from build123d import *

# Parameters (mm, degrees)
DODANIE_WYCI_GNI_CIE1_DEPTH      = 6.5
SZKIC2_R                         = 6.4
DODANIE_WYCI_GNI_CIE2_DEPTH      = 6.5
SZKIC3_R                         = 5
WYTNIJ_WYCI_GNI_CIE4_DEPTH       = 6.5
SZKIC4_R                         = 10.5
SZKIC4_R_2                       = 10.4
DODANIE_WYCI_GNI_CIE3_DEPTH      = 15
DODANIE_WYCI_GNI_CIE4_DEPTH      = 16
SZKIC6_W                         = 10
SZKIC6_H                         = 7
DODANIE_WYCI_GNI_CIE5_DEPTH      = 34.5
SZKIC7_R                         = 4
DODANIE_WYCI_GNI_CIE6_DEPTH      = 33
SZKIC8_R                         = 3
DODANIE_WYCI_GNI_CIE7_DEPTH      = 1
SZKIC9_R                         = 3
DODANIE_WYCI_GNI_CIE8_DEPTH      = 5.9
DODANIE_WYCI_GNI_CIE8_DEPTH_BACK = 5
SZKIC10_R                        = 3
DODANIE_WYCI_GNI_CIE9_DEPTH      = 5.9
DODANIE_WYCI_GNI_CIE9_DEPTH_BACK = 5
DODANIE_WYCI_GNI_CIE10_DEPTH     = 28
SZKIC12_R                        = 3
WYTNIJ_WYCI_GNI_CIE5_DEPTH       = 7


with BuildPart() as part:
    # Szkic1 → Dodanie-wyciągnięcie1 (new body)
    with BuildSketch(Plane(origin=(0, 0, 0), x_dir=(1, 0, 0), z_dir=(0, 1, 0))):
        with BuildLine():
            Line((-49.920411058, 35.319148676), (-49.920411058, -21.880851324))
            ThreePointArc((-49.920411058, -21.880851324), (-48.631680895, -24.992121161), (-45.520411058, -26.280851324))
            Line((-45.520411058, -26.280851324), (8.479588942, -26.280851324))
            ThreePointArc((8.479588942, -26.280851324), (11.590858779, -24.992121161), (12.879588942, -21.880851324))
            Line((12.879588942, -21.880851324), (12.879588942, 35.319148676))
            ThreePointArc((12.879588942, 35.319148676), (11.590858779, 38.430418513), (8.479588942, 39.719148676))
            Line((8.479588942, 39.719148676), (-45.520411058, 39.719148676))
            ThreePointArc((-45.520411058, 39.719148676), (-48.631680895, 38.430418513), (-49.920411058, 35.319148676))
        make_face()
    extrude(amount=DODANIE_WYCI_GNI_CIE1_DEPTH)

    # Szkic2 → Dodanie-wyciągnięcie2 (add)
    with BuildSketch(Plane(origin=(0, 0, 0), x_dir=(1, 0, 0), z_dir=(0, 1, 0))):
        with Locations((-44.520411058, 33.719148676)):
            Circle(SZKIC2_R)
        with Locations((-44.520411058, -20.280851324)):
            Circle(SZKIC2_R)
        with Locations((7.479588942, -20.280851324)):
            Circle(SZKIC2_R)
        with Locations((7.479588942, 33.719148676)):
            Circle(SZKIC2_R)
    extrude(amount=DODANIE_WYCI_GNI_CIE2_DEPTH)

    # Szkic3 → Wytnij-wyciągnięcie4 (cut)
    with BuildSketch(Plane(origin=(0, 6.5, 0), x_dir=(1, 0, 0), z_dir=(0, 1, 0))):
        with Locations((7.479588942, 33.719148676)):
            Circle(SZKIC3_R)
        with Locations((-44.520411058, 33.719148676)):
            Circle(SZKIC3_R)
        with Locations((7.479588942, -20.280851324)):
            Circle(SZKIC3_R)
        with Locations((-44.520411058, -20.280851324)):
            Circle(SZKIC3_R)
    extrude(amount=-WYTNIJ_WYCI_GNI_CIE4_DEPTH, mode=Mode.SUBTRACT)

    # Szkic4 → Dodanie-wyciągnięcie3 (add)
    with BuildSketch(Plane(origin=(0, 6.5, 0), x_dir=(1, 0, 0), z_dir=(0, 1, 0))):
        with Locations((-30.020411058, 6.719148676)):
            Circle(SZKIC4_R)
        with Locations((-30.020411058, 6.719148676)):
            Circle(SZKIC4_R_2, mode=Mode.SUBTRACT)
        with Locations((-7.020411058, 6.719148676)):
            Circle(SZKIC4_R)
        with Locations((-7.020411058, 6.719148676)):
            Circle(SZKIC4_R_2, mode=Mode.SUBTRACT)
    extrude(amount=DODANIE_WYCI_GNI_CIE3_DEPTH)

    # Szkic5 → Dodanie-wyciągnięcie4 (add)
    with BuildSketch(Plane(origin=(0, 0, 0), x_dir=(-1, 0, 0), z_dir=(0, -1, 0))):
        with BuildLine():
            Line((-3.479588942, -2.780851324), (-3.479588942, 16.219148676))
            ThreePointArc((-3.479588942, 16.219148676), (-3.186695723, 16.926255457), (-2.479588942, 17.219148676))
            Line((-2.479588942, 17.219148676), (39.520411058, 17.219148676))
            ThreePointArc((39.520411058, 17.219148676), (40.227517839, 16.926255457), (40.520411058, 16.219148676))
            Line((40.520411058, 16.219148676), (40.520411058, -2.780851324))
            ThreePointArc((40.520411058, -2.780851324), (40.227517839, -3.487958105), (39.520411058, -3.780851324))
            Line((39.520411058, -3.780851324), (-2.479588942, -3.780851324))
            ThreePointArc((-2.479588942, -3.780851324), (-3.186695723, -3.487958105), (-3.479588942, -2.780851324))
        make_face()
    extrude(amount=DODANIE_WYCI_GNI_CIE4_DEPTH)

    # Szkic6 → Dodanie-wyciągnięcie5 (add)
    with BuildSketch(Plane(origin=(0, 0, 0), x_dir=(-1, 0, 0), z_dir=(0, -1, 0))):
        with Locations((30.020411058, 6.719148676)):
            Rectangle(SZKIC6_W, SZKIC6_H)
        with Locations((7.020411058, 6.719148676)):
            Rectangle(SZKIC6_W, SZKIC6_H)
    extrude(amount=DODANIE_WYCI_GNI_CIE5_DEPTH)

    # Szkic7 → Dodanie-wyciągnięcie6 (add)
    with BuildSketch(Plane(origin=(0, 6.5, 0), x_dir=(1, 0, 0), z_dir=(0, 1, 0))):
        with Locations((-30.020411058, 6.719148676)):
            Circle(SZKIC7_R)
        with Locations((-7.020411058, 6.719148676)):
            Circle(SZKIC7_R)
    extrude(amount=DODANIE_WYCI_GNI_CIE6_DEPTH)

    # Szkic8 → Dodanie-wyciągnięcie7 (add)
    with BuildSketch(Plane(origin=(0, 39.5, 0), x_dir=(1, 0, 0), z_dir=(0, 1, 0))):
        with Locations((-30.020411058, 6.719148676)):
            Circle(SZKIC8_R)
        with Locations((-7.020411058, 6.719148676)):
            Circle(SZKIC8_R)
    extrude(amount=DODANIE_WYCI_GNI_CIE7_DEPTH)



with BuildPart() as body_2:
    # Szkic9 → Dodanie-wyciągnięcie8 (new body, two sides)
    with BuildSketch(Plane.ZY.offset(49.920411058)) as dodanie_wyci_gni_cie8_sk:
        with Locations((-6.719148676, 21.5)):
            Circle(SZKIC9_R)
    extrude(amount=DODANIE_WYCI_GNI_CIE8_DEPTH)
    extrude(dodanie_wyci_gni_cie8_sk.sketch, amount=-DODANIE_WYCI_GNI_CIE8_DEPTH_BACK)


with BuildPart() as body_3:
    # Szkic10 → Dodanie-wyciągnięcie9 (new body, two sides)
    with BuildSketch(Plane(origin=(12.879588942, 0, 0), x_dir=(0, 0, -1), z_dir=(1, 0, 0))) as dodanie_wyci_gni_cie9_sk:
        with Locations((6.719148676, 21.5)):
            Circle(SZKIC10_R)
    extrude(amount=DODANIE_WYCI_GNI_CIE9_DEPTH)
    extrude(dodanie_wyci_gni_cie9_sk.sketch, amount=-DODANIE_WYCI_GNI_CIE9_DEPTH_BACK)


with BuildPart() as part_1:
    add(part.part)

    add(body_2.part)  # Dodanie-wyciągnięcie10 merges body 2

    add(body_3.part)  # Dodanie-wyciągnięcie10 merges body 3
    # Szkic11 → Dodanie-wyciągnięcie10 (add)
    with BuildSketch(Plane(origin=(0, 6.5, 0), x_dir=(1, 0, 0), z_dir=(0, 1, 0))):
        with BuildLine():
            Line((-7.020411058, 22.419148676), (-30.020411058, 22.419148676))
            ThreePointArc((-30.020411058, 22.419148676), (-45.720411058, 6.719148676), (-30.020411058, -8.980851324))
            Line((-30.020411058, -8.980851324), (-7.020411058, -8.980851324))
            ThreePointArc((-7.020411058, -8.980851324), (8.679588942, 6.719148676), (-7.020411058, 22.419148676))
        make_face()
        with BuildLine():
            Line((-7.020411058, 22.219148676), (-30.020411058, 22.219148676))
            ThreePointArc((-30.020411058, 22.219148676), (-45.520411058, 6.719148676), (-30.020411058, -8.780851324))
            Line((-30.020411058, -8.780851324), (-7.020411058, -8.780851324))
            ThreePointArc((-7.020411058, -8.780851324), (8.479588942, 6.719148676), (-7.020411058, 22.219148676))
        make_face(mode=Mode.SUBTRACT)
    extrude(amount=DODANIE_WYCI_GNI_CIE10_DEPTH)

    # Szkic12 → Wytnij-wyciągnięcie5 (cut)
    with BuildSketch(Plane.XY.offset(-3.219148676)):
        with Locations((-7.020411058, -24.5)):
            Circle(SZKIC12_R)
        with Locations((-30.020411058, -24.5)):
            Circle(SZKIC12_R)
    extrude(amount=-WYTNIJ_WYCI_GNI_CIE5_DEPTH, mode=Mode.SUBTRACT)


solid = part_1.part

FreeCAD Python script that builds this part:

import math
import FreeCAD as App
import Part
import Sketcher
from FreeCAD import Vector


def add_polygon(sketch, points):
    """Adds a closed chain of lines whose ends are joined by coincident constraints."""
    first, n = sketch.GeometryCount, len(points)
    for a, b in zip(points, points[1:] + points[:1]):
        sketch.addGeometry(Part.LineSegment(App.Vector(*a, 0), App.Vector(*b, 0)), False)
    for i in range(n):
        sketch.addConstraint(Sketcher.Constraint("Coincident", first + i, 2, first + (i + 1) % n, 1))

doc = App.newDocument("Part")
body = doc.addObject("PartDesign::Body", "Body")

# Sketch on XZ plane
sketch1 = body.newObject("Sketcher::SketchObject", "Sketch")
sketch1.AttachmentSupport = (doc.getObject("XZ_Plane"), [""])
sketch1.MapMode = "FlatFace"
sketch1.addGeometry(Part.LineSegment(Vector(-49.9, -35.3, 0), Vector(-49.9, 21.9, 0)), False)
sketch1.addGeometry(Part.ArcOfCircle(Part.Circle(Vector(-45.5, 21.9, 0), Vector(0, 0, 1), 4.4), math.radians(90), math.radians(180)), False)
sketch1.addGeometry(Part.LineSegment(Vector(-45.5, 26.3, 0), Vector(8.5, 26.3, 0)), False)
sketch1.addGeometry(Part.ArcOfCircle(Part.Circle(Vector(8.5, 21.9, 0), Vector(0, 0, 1), 4.4), math.radians(0), math.radians(90)), False)
sketch1.addGeometry(Part.LineSegment(Vector(12.9, 21.9, 0), Vector(12.9, -35.3, 0)), False)
sketch1.addGeometry(Part.ArcOfCircle(Part.Circle(Vector(8.5, -35.3, 0), Vector(0, 0, 1), 4.4), math.radians(-90), math.radians(0)), False)
sketch1.addGeometry(Part.LineSegment(Vector(8.5, -39.7, 0), Vector(-45.5, -39.7, 0)), False)
sketch1.addGeometry(Part.ArcOfCircle(Part.Circle(Vector(-45.5, -35.3, 0), Vector(0, 0, 1), 4.4), math.radians(-180), math.radians(-90)), False)
sketch1.addConstraint(Sketcher.Constraint("Tangent", 0, 2, 1, 2))
sketch1.addConstraint(Sketcher.Constraint("Tangent", 1, 1, 2, 1))
sketch1.addConstraint(Sketcher.Constraint("Tangent", 2, 2, 3, 2))
sketch1.addConstraint(Sketcher.Constraint("Tangent", 3, 1, 4, 1))
sketch1.addConstraint(Sketcher.Constraint("Tangent", 4, 2, 5, 2))
sketch1.addConstraint(Sketcher.Constraint("Tangent", 5, 1, 6, 1))
sketch1.addConstraint(Sketcher.Constraint("Tangent", 6, 2, 7, 2))
sketch1.addConstraint(Sketcher.Constraint("Tangent", 7, 1, 0, 1))
sketch1.addConstraint(Sketcher.Constraint("Vertical", 0))
sketch1.addConstraint(Sketcher.Constraint("Horizontal", 2))
sketch1.addConstraint(Sketcher.Constraint("Vertical", 4))
sketch1.addConstraint(Sketcher.Constraint("Horizontal", 6))
sketch1.addConstraint(Sketcher.Constraint("Equal", 1, 3))
sketch1.addConstraint(Sketcher.Constraint("Equal", 3, 5))
sketch1.addConstraint(Sketcher.Constraint("Equal", 5, 7))
sketch1.addConstraint(Sketcher.Constraint("Radius", 1, 4.4))
sketch1.addConstraint(Sketcher.Constraint("DistanceX", 2, 1, 2, 2, 54.0))
sketch1.addConstraint(Sketcher.Constraint("DistanceY", 0, 1, 0, 2, 57.2))
sketch1.addConstraint(Sketcher.Constraint("DistanceX", 1, 3, -1, 1, 45.520411))
sketch1.addConstraint(Sketcher.Constraint("DistanceY", -1, 1, 1, 3, 21.880851))
pad1 = body.newObject("PartDesign::Pad", "Pad")
pad1.Profile = sketch1
pad1.Length = 6.5
pad1.Reversed = True

# Sketch on XZ plane
sketch2 = body.newObject("Sketcher::SketchObject", "Sketch001")
sketch2.AttachmentSupport = (doc.getObject("XZ_Plane"), [""])
sketch2.MapMode = "FlatFace"
sketch2.addGeometry(Part.Circle(Vector(-45, -34, 0), Vector(0, 0, 1), 6), False)
sketch2.addGeometry(Part.Circle(Vector(-45, 20, 0), Vector(0, 0, 1), 6), False)
sketch2.addGeometry(Part.Circle(Vector(7, 20, 0), Vector(0, 0, 1), 6), False)
sketch2.addGeometry(Part.Circle(Vector(7, -34, 0), Vector(0, 0, 1), 6), False)
sketch2.addConstraint(Sketcher.Constraint("Equal", 0, 1))
sketch2.addConstraint(Sketcher.Constraint("Equal", 1, 2))
sketch2.addConstraint(Sketcher.Constraint("Equal", 2, 3))
sketch2.addConstraint(Sketcher.Constraint("Horizontal", 1, 3, 2, 3))
sketch2.addConstraint(Sketcher.Constraint("Horizontal", 0, 3, 3, 3))
sketch2.addConstraint(Sketcher.Constraint("Vertical", 0, 3, 1, 3))
sketch2.addConstraint(Sketcher.Constraint("Vertical", 2, 3, 3, 3))
sketch2.addConstraint(Sketcher.Constraint("Diameter", 0, 12.8))
sketch2.addConstraint(Sketcher.Constraint("DistanceY", 0, 3, 1, 3, 54.0))
sketch2.addConstraint(Sketcher.Constraint("DistanceX", 1, 3, 2, 3, 52.0))
sketch2.addConstraint(Sketcher.Constraint("DistanceX", 0, 3, -1, 1, 44.520411))
sketch2.addConstraint(Sketcher.Constraint("DistanceY", 0, 3, -1, 1, 33.719149))
pad2 = body.newObject("PartDesign::Pad", "Pad001")
pad2.Profile = sketch2
pad2.Length = 6.5
pad2.Reversed = True

# Sketch on XZ plane
sketch3 = body.newObject("Sketcher::SketchObject", "Sketch002")
sketch3.AttachmentSupport = (doc.getObject("XZ_Plane"), [""])
sketch3.MapMode = "FlatFace"
sketch3.AttachmentOffset = App.Placement(Vector(0, 0, -6.5), App.Rotation())
sketch3.addGeometry(Part.Circle(Vector(7, -34, 0), Vector(0, 0, 1), 5), False)
sketch3.addGeometry(Part.Circle(Vector(-45, -34, 0), Vector(0, 0, 1), 5), False)
sketch3.addGeometry(Part.Circle(Vector(7, 20, 0), Vector(0, 0, 1), 5), False)
sketch3.addGeometry(Part.Circle(Vector(-45, 20, 0), Vector(0, 0, 1), 5), False)
sketch3.addConstraint(Sketcher.Constraint("Equal", 0, 1))
sketch3.addConstraint(Sketcher.Constraint("Equal", 1, 2))
sketch3.addConstraint(Sketcher.Constraint("Equal", 2, 3))
sketch3.addConstraint(Sketcher.Constraint("Horizontal", 0, 3, 1, 3))
sketch3.addConstraint(Sketcher.Constraint("Horizontal", 2, 3, 3, 3))
sketch3.addConstraint(Sketcher.Constraint("Vertical", 0, 3, 2, 3))
sketch3.addConstraint(Sketcher.Constraint("Vertical", 1, 3, 3, 3))
sketch3.addConstraint(Sketcher.Constraint("Diameter", 0, 10.0))
sketch3.addConstraint(Sketcher.Constraint("DistanceX", 1, 3, 0, 3, 52.0))
sketch3.addConstraint(Sketcher.Constraint("DistanceY", 0, 3, 2, 3, 54.0))
sketch3.addConstraint(Sketcher.Constraint("DistanceX", -1, 1, 0, 3, 7.479589))
sketch3.addConstraint(Sketcher.Constraint("DistanceY", 0, 3, -1, 1, 33.719149))
pocket1 = body.newObject("PartDesign::Pocket", "Pocket")
pocket1.Profile = sketch3
pocket1.Length = 6.5
pocket1.Reversed = True

# Sketch on XZ plane
sketch4 = body.newObject("Sketcher::SketchObject", "Sketch003")
sketch4.AttachmentSupport = (doc.getObject("XZ_Plane"), [""])
sketch4.MapMode = "FlatFace"
sketch4.AttachmentOffset = App.Placement(Vector(0, 0, -6.5), App.Rotation())
sketch4.addGeometry(Part.Circle(Vector(-30, -7, 0), Vector(0, 0, 1), 10), False)
sketch4.addGeometry(Part.Circle(Vector(-30, -7, 0), Vector(0, 0, 1), 10), False)
sketch4.addGeometry(Part.Circle(Vector(-7, -7, 0), Vector(0, 0, 1), 10), False)
sketch4.addGeometry(Part.Circle(Vector(-7, -7, 0), Vector(0, 0, 1), 10), False)
sketch4.addConstraint(Sketcher.Constraint("Coincident", 1, 3, 0, 3))
sketch4.addConstraint(Sketcher.Constraint("Coincident", 3, 3, 2, 3))
sketch4.addConstraint(Sketcher.Constraint("Equal", 0, 2))
sketch4.addConstraint(Sketcher.Constraint("Equal", 1, 3))
sketch4.addConstraint(Sketcher.Constraint("Horizontal", 1, 3, 2, 3))
sketch4.addConstraint(Sketcher.Constraint("Diameter", 0, 21.0))
sketch4.addConstraint(Sketcher.Constraint("Diameter", 1, 20.8))
sketch4.addConstraint(Sketcher.Constraint("DistanceX", 0, 3, 2, 3, 23.0))
sketch4.addConstraint(Sketcher.Constraint("DistanceX", 0, 3, -1, 1, 30.020411))
sketch4.addConstraint(Sketcher.Constraint("DistanceY", 0, 3, -1, 1, 6.719149))
pad3 = body.newObject("PartDesign::Pad", "Pad002")
pad3.Profile = sketch4
pad3.Length = 15
pad3.Reversed = True

# Sketch on XZ plane
sketch5 = body.newObject("Sketcher::SketchObject", "Sketch004")
sketch5.AttachmentSupport = (doc.getObject("XZ_Plane"), [""])
sketch5.MapMode = "FlatFace"
sketch5.addGeometry(Part.LineSegment(Vector(3.5, -16.2, 0), Vector(3.5, 2.8, 0)), False)
sketch5.addGeometry(Part.ArcOfCircle(Part.Circle(Vector(2.5, 2.8, 0), Vector(0, 0, 1), 1), math.radians(0), math.radians(90)), False)
sketch5.addGeometry(Part.LineSegment(Vector(2.5, 3.8, 0), Vector(-39.5, 3.8, 0)), False)
sketch5.addGeometry(Part.ArcOfCircle(Part.Circle(Vector(-39.5, 2.8, 0), Vector(0, 0, 1), 1), math.radians(90), math.radians(180)), False)
sketch5.addGeometry(Part.LineSegment(Vector(-40.5, 2.8, 0), Vector(-40.5, -16.2, 0)), False)
sketch5.addGeometry(Part.ArcOfCircle(Part.Circle(Vector(-39.5, -16.2, 0), Vector(0, 0, 1), 1), math.radians(-180), math.radians(-90)), False)
sketch5.addGeometry(Part.LineSegment(Vector(-39.5, -17.2, 0), Vector(2.5, -17.2, 0)), False)
sketch5.addGeometry(Part.ArcOfCircle(Part.Circle(Vector(2.5, -16.2, 0), Vector(0, 0, 1), 1), math.radians(-90), math.radians(0)), False)
sketch5.addConstraint(Sketcher.Constraint("Tangent", 0, 2, 1, 1))
sketch5.addConstraint(Sketcher.Constraint("Tangent", 1, 2, 2, 1))
sketch5.addConstraint(Sketcher.Constraint("Tangent", 2, 2, 3, 1))
sketch5.addConstraint(Sketcher.Constraint("Tangent", 3, 2, 4, 1))
sketch5.addConstraint(Sketcher.Constraint("Tangent", 4, 2, 5, 1))
sketch5.addConstraint(Sketcher.Constraint("Tangent", 5, 2, 6, 1))
sketch5.addConstraint(Sketcher.Constraint("Tangent", 6, 2, 7, 1))
sketch5.addConstraint(Sketcher.Constraint("Tangent", 7, 2, 0, 1))
sketch5.addConstraint(Sketcher.Constraint("Vertical", 0))
sketch5.addConstraint(Sketcher.Constraint("Horizontal", 2))
sketch5.addConstraint(Sketcher.Constraint("Vertical", 4))
sketch5.addConstraint(Sketcher.Constraint("Horizontal", 6))
sketch5.addConstraint(Sketcher.Constraint("Equal", 1, 3))
sketch5.addConstraint(Sketcher.Constraint("Equal", 3, 5))
sketch5.addConstraint(Sketcher.Constraint("Equal", 5, 7))
sketch5.addConstraint(Sketcher.Constraint("Radius", 1, 1.0))
sketch5.addConstraint(Sketcher.Constraint("DistanceX", 2, 2, 2, 1, 42.0))
sketch5.addConstraint(Sketcher.Constraint("DistanceY", 0, 1, 0, 2, 19.0))
sketch5.addConstraint(Sketcher.Constraint("DistanceX", -1, 1, 1, 3, 2.479589))
sketch5.addConstraint(Sketcher.Constraint("DistanceY", -1, 1, 1, 3, 2.780851))
pad4 = body.newObject("PartDesign::Pad", "Pad003")
pad4.Profile = sketch5
pad4.Length = 16

# Sketch on XZ plane
sketch6 = body.newObject("Sketcher::SketchObject", "Sketch005")
sketch6.AttachmentSupport = (doc.getObject("XZ_Plane"), [""])
sketch6.MapMode = "FlatFace"
add_polygon(sketch6, [(-25, -10), (-25, -3), (-35, -3), (-35, -10)])  # lines 0-3
add_polygon(sketch6, [(-2, -10), (-2, -3), (-12, -3), (-12, -10)])  # lines 4-7
sketch6.addConstraint(Sketcher.Constraint("Vertical", 0))
sketch6.addConstraint(Sketcher.Constraint("Horizontal", 1))
sketch6.addConstraint(Sketcher.Constraint("Vertical", 2))
sketch6.addConstraint(Sketcher.Constraint("Horizontal", 3))
sketch6.addConstraint(Sketcher.Constraint("Vertical", 4))
sketch6.addConstraint(Sketcher.Constraint("Horizontal", 5))
sketch6.addConstraint(Sketcher.Constraint("Vertical", 6))
sketch6.addConstraint(Sketcher.Constraint("Horizontal", 7))
sketch6.addConstraint(Sketcher.Constraint("Horizontal", 1, 2, 4, 2))
sketch6.addConstraint(Sketcher.Constraint("Horizontal", 3, 2, 6, 2))
sketch6.addConstraint(Sketcher.Constraint("Equal", 3, 5))
sketch6.addConstraint(Sketcher.Constraint("DistanceX", 1, 2, 1, 1, 10.0))
sketch6.addConstraint(Sketcher.Constraint("DistanceY", 0, 1, 0, 2, 7.0))
sketch6.addConstraint(Sketcher.Constraint("DistanceX", 0, 2, 4, 2, 23.0))
sketch6.addConstraint(Sketcher.Constraint("DistanceX", 0, 2, -1, 1, 25.020411))
sketch6.addConstraint(Sketcher.Constraint("DistanceY", 0, 2, -1, 1, 3.219149))
pad5 = body.newObject("PartDesign::Pad", "Pad004")
pad5.Profile = sketch6
pad5.Length = 34.5

# Sketch on XZ plane
sketch7 = body.newObject("Sketcher::SketchObject", "Sketch006")
sketch7.AttachmentSupport = (doc.getObject("XZ_Plane"), [""])
sketch7.MapMode = "FlatFace"
sketch7.AttachmentOffset = App.Placement(Vector(0, 0, -6.5), App.Rotation())
sketch7.addGeometry(Part.Circle(Vector(-30, -6.7, 0), Vector(0, 0, 1), 4), False)
sketch7.addGeometry(Part.Circle(Vector(-7, -6.7, 0), Vector(0, 0, 1), 4), False)
sketch7.addConstraint(Sketcher.Constraint("Equal", 0, 1))
sketch7.addConstraint(Sketcher.Constraint("Horizontal", 0, 3, 1, 3))
sketch7.addConstraint(Sketcher.Constraint("Diameter", 0, 8.0))
sketch7.addConstraint(Sketcher.Constraint("DistanceX", 0, 3, 1, 3, 23.0))
sketch7.addConstraint(Sketcher.Constraint("DistanceX", 0, 3, -1, 1, 30.020411))
sketch7.addConstraint(Sketcher.Constraint("DistanceY", 0, 3, -1, 1, 6.719149))
pad6 = body.newObject("PartDesign::Pad", "Pad005")
pad6.Profile = sketch7
pad6.Length = 33
pad6.Reversed = True

# Sketch on XZ plane
sketch8 = body.newObject("Sketcher::SketchObject", "Sketch007")
sketch8.AttachmentSupport = (doc.getObject("XZ_Plane"), [""])
sketch8.MapMode = "FlatFace"
sketch8.AttachmentOffset = App.Placement(Vector(0, 0, -39.5), App.Rotation())
sketch8.addGeometry(Part.Circle(Vector(-30, -6.7, 0), Vector(0, 0, 1), 3), False)
sketch8.addGeometry(Part.Circle(Vector(-7, -6.7, 0), Vector(0, 0, 1), 3), False)
sketch8.addConstraint(Sketcher.Constraint("Equal", 0, 1))
sketch8.addConstraint(Sketcher.Constraint("Horizontal", 0, 3, 1, 3))
sketch8.addConstraint(Sketcher.Constraint("Diameter", 0, 6.0))
sketch8.addConstraint(Sketcher.Constraint("DistanceX", 0, 3, 1, 3, 23.0))
sketch8.addConstraint(Sketcher.Constraint("DistanceX", 0, 3, -1, 1, 30.020411))
sketch8.addConstraint(Sketcher.Constraint("DistanceY", 0, 3, -1, 1, 6.719149))
pad7 = body.newObject("PartDesign::Pad", "Pad006")
pad7.Profile = sketch8
pad7.Length = 1
pad7.Reversed = True
body2 = doc.addObject("PartDesign::Body", "Body001")

# Sketch on YZ plane
sketch9 = body2.newObject("Sketcher::SketchObject", "Sketch008")
sketch9.AttachmentSupport = (doc.getObject("YZ_Plane001"), [""])
sketch9.MapMode = "FlatFace"
sketch9.AttachmentOffset = App.Placement(Vector(0, 0, -49.920411), App.Rotation())
sketch9.addGeometry(Part.Circle(Vector(21.5, -6.7, 0), Vector(0, 0, 1), 3), False)
sketch9.addConstraint(Sketcher.Constraint("Diameter", 0, 6.0))
sketch9.addConstraint(Sketcher.Constraint("DistanceX", -1, 1, 0, 3, 21.5))
sketch9.addConstraint(Sketcher.Constraint("DistanceY", 0, 3, -1, 1, 6.719149))
pad8 = body2.newObject("PartDesign::Pad", "Pad007")
pad8.Profile = sketch9
pad8.Type = "TwoLengths"
pad8.Length = 5.9
pad8.Length2 = 5
pad8.Reversed = True
body3 = doc.addObject("PartDesign::Body", "Body002")

# Sketch on YZ plane
sketch10 = body3.newObject("Sketcher::SketchObject", "Sketch009")
sketch10.AttachmentSupport = (doc.getObject("YZ_Plane002"), [""])
sketch10.MapMode = "FlatFace"
sketch10.AttachmentOffset = App.Placement(Vector(0, 0, 12.879589), App.Rotation())
sketch10.addGeometry(Part.Circle(Vector(21.5, -6.7, 0), Vector(0, 0, 1), 3), False)
sketch10.addConstraint(Sketcher.Constraint("Diameter", 0, 6.0))
sketch10.addConstraint(Sketcher.Constraint("DistanceX", -1, 1, 0, 3, 21.5))
sketch10.addConstraint(Sketcher.Constraint("DistanceY", 0, 3, -1, 1, 6.719149))
pad9 = body3.newObject("PartDesign::Pad", "Pad008")
pad9.Profile = sketch10
pad9.Type = "TwoLengths"
pad9.Length = 5.9
pad9.Length2 = 5
body.AllowCompound = True
doc.recompute()

boolean = body.newObject("PartDesign::Boolean", "Boolean")
boolean.Type = "Fuse"
boolean.addObjects([body2])
doc.recompute()

boolean2 = body.newObject("PartDesign::Boolean", "Boolean001")
boolean2.Type = "Fuse"
boolean2.addObjects([body3])

# Sketch on XZ plane
sketch11 = body.newObject("Sketcher::SketchObject", "Sketch010")
sketch11.AttachmentSupport = (doc.getObject("XZ_Plane"), [""])
sketch11.MapMode = "FlatFace"
sketch11.AttachmentOffset = App.Placement(Vector(0, 0, -6.5), App.Rotation())
sketch11.addGeometry(Part.LineSegment(Vector(-7, -22, 0), Vector(-30, -22, 0)), False)
sketch11.addGeometry(Part.ArcOfCircle(Part.Circle(Vector(-30, -7, 0), Vector(0, 0, 1), 16), math.radians(90), math.radians(270)), False)
sketch11.addGeometry(Part.LineSegment(Vector(-30, 9, 0), Vector(-7, 9, 0)), False)
sketch11.addGeometry(Part.ArcOfCircle(Part.Circle(Vector(-7, -7, 0), Vector(0, 0, 1), 16), math.radians(-90), math.radians(90)), False)
sketch11.addGeometry(Part.LineSegment(Vector(-30, -22, 0), Vector(-7, -22, 0)), False)
sketch11.addGeometry(Part.ArcOfCircle(Part.Circle(Vector(-7, -7, 0), Vector(0, 0, 1), 16), math.radians(-90), math.radians(90)), False)
sketch11.addGeometry(Part.LineSegment(Vector(-7, 9, 0), Vector(-30, 9, 0)), False)
sketch11.addGeometry(Part.ArcOfCircle(Part.Circle(Vector(-30, -7, 0), Vector(0, 0, 1), 16), math.radians(90), math.radians(270)), False)
sketch11.addConstraint(Sketcher.Constraint("Tangent", 0, 2, 1, 2))
sketch11.addConstraint(Sketcher.Constraint("Tangent", 1, 1, 2, 1))
sketch11.addConstraint(Sketcher.Constraint("Tangent", 2, 2, 3, 2))
sketch11.addConstraint(Sketcher.Constraint("Tangent", 3, 1, 0, 1))
sketch11.addConstraint(Sketcher.Constraint("Tangent", 4, 2, 5, 1))
sketch11.addConstraint(Sketcher.Constraint("Tangent", 5, 2, 6, 1))
sketch11.addConstraint(Sketcher.Constraint("Tangent", 6, 2, 7, 1))
sketch11.addConstraint(Sketcher.Constraint("Tangent", 7, 2, 4, 1))
sketch11.addConstraint(Sketcher.Constraint("Horizontal", 0))
sketch11.addConstraint(Sketcher.Constraint("Horizontal", 2))
sketch11.addConstraint(Sketcher.Constraint("Horizontal", 4))
sketch11.addConstraint(Sketcher.Constraint("Horizontal", 6))
sketch11.addConstraint(Sketcher.Constraint("Coincident", 5, 3, 3, 3))
sketch11.addConstraint(Sketcher.Constraint("Vertical", 7, 3, 0, 2))
sketch11.addConstraint(Sketcher.Constraint("Radius", 1, 15.7))
sketch11.addConstraint(Sketcher.Constraint("Radius", 5, 15.5))
sketch11.addConstraint(Sketcher.Constraint("DistanceX", 0, 2, 0, 1, 23.0))
sketch11.addConstraint(Sketcher.Constraint("DistanceX", 1, 3, -1, 1, 30.020411))
sketch11.addConstraint(Sketcher.Constraint("DistanceY", 1, 3, -1, 1, 6.719149))
pad10 = body.newObject("PartDesign::Pad", "Pad009")
pad10.Profile = sketch11
pad10.Length = 28
pad10.Reversed = True

# Sketch on XY plane
sketch12 = body.newObject("Sketcher::SketchObject", "Sketch011")
sketch12.AttachmentSupport = (doc.getObject("XY_Plane"), [""])
sketch12.MapMode = "FlatFace"
sketch12.AttachmentOffset = App.Placement(Vector(0, 0, -3.219149), App.Rotation())
sketch12.addGeometry(Part.Circle(Vector(-7, -24.5, 0), Vector(0, 0, 1), 3), False)
sketch12.addGeometry(Part.Circle(Vector(-30, -24.5, 0), Vector(0, 0, 1), 3), False)
sketch12.addConstraint(Sketcher.Constraint("Equal", 0, 1))
sketch12.addConstraint(Sketcher.Constraint("Horizontal", 0, 3, 1, 3))
sketch12.addConstraint(Sketcher.Constraint("Diameter", 0, 6.0))
sketch12.addConstraint(Sketcher.Constraint("DistanceX", 1, 3, 0, 3, 23.0))
sketch12.addConstraint(Sketcher.Constraint("DistanceY", 0, 3, -1, 1, 24.5))
sketch12.addConstraint(Sketcher.Constraint("DistanceX", 0, 3, -1, 1, 7.020411))
pocket2 = body.newObject("PartDesign::Pocket", "Pocket001")
pocket2.Profile = sketch12
pocket2.Length = 7

doc.recompute()
